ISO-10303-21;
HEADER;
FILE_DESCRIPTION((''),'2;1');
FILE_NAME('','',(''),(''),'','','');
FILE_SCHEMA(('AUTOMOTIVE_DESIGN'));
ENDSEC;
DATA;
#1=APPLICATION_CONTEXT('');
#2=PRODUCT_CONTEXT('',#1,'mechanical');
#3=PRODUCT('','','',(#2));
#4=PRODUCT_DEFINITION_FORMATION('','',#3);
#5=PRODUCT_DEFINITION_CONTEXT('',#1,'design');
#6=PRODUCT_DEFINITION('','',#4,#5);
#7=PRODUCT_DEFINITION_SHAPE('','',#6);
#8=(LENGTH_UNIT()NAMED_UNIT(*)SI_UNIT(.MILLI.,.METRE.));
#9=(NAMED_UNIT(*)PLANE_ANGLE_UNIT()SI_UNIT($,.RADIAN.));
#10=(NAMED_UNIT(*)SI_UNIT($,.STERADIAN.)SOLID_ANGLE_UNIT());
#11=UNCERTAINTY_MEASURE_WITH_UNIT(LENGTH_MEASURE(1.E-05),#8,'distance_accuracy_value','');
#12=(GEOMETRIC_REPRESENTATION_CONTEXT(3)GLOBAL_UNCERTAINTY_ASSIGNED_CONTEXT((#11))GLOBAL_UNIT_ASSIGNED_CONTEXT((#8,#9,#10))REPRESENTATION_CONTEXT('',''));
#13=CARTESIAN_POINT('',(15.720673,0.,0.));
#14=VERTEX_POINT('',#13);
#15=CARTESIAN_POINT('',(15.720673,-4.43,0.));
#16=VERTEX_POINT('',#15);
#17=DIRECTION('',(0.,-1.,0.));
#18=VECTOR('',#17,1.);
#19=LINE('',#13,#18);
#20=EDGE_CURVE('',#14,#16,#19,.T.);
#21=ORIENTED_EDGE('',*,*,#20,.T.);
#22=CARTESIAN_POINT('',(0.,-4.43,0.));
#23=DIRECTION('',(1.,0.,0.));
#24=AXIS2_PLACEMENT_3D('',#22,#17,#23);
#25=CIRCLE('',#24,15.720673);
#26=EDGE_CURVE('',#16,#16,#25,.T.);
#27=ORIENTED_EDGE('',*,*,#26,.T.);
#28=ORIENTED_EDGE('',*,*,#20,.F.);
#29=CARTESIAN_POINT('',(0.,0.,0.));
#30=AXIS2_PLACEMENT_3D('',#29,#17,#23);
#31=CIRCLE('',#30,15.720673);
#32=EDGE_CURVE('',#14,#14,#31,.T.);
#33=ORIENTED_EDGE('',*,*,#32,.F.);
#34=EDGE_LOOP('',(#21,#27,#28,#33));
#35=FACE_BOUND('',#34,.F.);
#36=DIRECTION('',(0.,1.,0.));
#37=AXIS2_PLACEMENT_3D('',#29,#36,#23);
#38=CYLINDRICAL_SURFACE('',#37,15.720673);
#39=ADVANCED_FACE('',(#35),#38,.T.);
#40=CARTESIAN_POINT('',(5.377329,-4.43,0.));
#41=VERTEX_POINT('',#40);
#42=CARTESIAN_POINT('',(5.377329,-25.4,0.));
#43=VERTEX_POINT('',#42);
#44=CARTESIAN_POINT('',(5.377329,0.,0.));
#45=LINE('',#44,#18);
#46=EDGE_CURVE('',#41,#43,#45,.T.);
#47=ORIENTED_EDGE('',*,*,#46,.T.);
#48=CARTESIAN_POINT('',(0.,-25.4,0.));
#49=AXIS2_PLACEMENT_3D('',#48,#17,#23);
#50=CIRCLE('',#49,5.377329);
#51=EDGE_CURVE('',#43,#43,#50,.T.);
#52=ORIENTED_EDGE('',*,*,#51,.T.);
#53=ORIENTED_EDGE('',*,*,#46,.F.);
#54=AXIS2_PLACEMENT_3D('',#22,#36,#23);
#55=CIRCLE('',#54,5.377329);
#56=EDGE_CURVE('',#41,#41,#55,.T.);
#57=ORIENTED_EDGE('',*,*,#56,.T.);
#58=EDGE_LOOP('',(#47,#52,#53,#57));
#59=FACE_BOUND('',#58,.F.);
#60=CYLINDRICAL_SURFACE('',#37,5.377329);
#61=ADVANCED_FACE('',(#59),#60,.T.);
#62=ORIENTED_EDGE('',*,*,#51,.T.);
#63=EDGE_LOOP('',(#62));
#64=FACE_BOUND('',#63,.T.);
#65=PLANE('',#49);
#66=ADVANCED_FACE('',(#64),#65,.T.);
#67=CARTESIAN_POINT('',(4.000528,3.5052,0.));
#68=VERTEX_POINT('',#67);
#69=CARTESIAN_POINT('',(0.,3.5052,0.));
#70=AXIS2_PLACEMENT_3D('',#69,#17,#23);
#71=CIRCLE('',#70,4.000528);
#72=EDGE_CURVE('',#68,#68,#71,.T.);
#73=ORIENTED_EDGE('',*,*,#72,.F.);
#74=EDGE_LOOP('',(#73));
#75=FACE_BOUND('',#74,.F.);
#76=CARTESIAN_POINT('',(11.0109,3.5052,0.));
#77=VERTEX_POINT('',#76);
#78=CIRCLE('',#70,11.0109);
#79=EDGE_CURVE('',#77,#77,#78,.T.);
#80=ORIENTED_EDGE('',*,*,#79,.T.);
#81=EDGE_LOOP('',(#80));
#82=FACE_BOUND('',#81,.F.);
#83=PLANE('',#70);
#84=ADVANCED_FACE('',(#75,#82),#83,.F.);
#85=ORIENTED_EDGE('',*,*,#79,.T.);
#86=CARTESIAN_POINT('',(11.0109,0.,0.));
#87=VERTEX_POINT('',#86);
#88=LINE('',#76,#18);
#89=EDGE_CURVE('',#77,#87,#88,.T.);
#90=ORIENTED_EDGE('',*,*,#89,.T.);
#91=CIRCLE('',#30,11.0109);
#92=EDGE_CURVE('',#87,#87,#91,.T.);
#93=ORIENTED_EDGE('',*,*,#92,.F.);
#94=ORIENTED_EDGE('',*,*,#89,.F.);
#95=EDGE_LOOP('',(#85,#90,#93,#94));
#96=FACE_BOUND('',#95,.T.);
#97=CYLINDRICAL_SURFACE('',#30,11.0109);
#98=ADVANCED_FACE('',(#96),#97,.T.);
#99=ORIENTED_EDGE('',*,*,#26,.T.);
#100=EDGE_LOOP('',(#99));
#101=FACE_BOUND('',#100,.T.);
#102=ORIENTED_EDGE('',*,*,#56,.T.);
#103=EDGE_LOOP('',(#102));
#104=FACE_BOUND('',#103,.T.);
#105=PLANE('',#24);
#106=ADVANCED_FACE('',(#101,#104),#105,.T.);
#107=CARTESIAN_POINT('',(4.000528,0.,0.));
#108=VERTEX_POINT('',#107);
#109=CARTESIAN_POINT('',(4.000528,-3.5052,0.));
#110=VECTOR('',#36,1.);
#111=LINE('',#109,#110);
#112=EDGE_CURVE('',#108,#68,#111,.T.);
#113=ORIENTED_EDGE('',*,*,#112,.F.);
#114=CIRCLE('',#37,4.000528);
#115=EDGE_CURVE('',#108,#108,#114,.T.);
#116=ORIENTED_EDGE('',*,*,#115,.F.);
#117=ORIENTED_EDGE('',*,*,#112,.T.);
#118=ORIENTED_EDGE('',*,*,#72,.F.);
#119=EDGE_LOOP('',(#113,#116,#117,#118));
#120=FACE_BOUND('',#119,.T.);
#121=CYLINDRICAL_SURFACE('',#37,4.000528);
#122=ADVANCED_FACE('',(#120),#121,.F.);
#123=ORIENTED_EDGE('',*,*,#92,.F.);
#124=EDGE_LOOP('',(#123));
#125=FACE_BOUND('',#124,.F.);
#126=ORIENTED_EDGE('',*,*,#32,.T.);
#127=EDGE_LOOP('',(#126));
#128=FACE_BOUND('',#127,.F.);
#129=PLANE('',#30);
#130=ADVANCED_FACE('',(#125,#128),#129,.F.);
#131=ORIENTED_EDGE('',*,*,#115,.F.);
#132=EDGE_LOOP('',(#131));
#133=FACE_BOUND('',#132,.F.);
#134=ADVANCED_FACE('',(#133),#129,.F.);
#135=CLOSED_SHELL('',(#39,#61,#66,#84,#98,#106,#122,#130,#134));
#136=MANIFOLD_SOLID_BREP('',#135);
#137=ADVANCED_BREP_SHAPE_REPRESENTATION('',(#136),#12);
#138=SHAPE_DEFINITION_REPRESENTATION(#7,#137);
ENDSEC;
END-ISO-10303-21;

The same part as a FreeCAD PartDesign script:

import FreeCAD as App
import Part
import Sketcher
Q = App.Units.Quantity

doc = App.newDocument("Part")
body = doc.addObject("PartDesign::Body", "Body")

sketch1 = body.newObject("Sketcher::SketchObject", "Sketch")
sketch1.AttachmentSupport = (doc.getObject("XZ_Plane"), [""])
sketch1.MapMode = "FlatFace"
sketch1.addGeometry([
    Part.Circle(App.Vector(0, 0, 0), App.Vector(0, 0, 1), 11),
    Part.Circle(App.Vector(0, 0, 0), App.Vector(0, 0, 1), 4),
], False)
sketch1.addConstraint([
    Sketcher.Constraint("Coincident", 0, 3, -1, 1),
    Sketcher.Constraint("Coincident", 1, 3, -1, 1),
    Sketcher.Constraint("Diameter", 0, Q("0.867 in")),
    Sketcher.Constraint("Diameter", 1, 8.001057),
])
pad1 = body.newObject("PartDesign::Pad", "Pad")
pad1.Profile = sketch1
pad1.Length = Q("0.276 in")
pad1.Midplane = True

sketch2 = body.newObject("Sketcher::SketchObject", "Sketch001")
sketch2.AttachmentSupport = (doc.getObject("XZ_Plane"), [""])
sketch2.MapMode = "FlatFace"
sketch2.addGeometry(Part.Circle(App.Vector(0, 0, 0), App.Vector(0, 0, 1), 16), False)
sketch2.addConstraint([
    Sketcher.Constraint("Coincident", 0, 3, -1, 1),
    Sketcher.Constraint("Diameter", 0, 31.441346),
])
pad2 = body.newObject("PartDesign::Pad", "Pad001")
pad2.Profile = sketch2
pad2.Length = 4.43

sketch3 = body.newObject("Sketcher::SketchObject", "Sketch002")
sketch3.AttachmentSupport = (doc.getObject("XZ_Plane"), [""])
sketch3.MapMode = "FlatFace"
sketch3.addGeometry(Part.Circle(App.Vector(0, 0, 0), App.Vector(0, 0, 1), 5), False)
sketch3.addConstraint([
    Sketcher.Constraint("Coincident", 0, 3, -1, 1),
    Sketcher.Constraint("Diameter", 0, 10.754658),
])
pad3 = body.newObject("PartDesign::Pad", "Pad002")
pad3.Profile = sketch3
pad3.Length = Q("1 in")

doc.recompute()
